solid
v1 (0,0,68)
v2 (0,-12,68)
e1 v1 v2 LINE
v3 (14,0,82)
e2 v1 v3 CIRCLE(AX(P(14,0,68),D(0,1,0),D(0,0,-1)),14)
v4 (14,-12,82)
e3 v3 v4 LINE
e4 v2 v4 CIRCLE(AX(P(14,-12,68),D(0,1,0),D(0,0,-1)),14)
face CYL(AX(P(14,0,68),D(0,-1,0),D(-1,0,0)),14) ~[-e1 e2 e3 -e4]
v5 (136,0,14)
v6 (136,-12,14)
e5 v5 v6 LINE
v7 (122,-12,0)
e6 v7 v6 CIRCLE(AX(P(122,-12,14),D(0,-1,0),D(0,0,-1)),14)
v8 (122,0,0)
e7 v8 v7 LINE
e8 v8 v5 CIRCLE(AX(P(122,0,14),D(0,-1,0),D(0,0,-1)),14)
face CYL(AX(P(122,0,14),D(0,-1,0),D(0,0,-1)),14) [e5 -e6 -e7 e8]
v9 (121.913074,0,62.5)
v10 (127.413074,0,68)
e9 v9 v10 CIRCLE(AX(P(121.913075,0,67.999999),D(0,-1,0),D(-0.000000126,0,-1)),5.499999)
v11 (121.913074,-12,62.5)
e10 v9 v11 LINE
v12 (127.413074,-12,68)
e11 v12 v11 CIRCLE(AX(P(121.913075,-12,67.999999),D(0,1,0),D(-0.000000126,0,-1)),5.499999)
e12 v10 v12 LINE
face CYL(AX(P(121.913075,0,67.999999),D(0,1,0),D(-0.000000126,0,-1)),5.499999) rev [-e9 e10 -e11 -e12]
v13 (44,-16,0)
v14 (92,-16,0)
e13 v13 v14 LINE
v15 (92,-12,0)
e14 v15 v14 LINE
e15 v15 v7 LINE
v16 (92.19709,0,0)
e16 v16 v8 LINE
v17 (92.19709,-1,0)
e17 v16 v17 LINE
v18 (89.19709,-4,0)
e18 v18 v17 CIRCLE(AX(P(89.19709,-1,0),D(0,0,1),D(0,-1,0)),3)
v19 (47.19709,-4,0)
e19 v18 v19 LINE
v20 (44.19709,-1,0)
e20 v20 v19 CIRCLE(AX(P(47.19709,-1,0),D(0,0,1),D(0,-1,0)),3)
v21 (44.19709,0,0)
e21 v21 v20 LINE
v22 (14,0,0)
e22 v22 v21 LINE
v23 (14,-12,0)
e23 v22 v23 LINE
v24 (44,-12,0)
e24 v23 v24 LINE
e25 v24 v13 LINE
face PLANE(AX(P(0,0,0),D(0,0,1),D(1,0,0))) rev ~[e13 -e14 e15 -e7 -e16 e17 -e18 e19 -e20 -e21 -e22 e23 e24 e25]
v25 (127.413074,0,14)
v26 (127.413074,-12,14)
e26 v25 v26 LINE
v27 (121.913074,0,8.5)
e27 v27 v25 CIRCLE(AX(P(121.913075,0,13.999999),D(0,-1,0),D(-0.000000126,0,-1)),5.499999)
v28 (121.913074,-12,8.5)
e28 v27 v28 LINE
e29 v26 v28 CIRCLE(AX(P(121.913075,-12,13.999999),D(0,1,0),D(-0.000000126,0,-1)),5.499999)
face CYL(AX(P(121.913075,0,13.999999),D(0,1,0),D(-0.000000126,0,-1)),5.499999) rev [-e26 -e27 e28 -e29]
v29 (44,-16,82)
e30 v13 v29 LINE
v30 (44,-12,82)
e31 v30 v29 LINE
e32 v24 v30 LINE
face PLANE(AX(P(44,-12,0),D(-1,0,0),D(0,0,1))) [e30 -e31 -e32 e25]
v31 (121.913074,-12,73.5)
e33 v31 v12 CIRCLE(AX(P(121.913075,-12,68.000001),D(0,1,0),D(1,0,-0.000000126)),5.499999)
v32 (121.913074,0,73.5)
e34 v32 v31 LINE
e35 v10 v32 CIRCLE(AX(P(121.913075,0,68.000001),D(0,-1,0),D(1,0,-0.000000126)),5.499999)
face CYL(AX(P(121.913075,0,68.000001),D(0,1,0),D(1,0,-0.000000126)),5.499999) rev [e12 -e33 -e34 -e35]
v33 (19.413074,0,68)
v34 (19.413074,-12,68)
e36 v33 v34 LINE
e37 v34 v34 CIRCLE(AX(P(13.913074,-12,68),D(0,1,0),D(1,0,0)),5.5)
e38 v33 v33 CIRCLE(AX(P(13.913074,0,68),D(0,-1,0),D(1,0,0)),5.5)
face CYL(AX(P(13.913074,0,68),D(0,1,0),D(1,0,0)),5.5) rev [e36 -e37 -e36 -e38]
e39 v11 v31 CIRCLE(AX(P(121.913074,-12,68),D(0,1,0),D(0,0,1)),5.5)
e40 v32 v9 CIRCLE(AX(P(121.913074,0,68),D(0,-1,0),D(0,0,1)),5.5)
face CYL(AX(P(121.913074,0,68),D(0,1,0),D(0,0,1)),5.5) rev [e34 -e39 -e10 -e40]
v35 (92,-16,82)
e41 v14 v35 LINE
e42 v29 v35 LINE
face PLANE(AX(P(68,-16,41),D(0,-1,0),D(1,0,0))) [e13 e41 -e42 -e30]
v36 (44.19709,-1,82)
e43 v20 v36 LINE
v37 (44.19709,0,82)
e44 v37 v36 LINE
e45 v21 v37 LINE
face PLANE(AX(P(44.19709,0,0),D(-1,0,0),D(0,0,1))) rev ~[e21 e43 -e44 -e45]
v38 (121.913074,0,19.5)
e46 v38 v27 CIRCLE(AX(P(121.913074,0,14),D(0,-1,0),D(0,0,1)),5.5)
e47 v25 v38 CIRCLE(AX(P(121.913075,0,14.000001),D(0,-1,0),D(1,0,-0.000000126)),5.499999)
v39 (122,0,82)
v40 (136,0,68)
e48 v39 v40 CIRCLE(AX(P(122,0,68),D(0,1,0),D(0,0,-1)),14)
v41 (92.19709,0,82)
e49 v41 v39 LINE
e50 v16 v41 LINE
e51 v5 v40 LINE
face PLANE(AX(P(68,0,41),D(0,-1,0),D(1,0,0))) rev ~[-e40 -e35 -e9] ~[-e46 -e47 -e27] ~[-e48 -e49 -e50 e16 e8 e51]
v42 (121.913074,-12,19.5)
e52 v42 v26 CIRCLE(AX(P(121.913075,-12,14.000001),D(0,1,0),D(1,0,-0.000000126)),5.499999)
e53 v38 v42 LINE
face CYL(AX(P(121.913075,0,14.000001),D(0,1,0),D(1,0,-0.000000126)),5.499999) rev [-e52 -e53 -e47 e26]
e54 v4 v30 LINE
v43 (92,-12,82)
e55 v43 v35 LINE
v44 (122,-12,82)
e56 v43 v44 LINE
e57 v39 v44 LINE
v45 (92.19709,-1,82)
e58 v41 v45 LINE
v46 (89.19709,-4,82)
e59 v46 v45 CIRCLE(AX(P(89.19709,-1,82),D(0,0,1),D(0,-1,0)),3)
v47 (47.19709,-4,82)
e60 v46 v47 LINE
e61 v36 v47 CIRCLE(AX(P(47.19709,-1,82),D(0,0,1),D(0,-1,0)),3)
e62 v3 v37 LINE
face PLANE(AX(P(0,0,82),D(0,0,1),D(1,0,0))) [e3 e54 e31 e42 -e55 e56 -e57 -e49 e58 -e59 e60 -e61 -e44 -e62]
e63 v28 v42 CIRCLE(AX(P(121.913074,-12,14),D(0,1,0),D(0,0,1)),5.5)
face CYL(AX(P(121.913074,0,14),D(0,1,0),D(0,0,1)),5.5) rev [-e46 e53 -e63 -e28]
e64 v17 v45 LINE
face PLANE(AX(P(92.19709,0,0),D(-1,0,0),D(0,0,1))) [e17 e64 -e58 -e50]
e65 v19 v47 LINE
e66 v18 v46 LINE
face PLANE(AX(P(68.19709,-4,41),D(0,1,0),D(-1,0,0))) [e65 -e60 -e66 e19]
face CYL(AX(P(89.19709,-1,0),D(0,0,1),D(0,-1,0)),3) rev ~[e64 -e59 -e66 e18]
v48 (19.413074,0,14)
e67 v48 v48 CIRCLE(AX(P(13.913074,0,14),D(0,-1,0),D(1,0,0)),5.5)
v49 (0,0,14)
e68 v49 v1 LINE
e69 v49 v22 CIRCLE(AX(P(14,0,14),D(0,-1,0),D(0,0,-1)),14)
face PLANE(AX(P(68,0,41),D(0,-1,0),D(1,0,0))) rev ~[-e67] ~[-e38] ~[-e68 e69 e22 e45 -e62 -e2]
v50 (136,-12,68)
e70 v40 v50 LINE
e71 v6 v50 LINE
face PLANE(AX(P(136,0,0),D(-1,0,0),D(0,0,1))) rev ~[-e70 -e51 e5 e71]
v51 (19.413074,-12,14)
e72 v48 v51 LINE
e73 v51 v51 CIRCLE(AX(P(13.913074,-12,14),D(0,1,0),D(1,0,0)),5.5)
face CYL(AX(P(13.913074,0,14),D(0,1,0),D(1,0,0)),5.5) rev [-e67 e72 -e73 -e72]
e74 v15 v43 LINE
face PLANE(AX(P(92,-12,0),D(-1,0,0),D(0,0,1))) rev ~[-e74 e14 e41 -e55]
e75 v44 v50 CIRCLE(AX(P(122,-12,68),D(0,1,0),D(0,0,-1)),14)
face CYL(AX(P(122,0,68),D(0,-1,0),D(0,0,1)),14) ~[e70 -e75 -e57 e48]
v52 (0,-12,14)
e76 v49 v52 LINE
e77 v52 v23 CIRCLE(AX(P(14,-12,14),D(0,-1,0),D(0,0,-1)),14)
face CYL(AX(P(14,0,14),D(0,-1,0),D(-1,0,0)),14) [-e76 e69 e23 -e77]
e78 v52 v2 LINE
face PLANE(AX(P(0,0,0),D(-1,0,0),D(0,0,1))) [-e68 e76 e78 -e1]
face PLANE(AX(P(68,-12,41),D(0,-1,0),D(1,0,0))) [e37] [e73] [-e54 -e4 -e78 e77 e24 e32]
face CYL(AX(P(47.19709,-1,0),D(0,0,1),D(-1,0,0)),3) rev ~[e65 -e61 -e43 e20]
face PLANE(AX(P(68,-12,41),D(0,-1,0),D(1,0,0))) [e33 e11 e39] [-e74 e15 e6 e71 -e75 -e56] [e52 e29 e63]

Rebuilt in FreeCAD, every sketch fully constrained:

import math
import FreeCAD as App
import Part
import Sketcher
from FreeCAD import Vector
Q = App.Units.Quantity


def edges_at(feature, points):
    """Names of the edges that pass closest to the given points."""
    edges = feature.Shape.Edges
    near = lambda p: min(range(len(edges)), key=lambda i: edges[i].distToShape(Part.Vertex(*p))[0])
    return sorted({f"Edge{near(p) + 1}" for p in points})


def add_polygon(sketch, points):
    """Adds a closed chain of lines whose ends are joined by coincident constraints."""
    first, n = sketch.GeometryCount, len(points)
    for a, b in zip(points, points[1:] + points[:1]):
        sketch.addGeometry(Part.LineSegment(App.Vector(*a, 0), App.Vector(*b, 0)), False)
    for i in range(n):
        sketch.addConstraint(Sketcher.Constraint("Coincident", first + i, 2, first + (i + 1) % n, 1))

doc = App.newDocument("Part")
params = doc.addObject("Spreadsheet::Sheet", "Params")
for row, (alias, value) in enumerate([
    ("sketch1_width", "136 mm"),
    ("sketch1_height", "82 mm"),
    ("pad1_length", "12 mm"),
    ("sketch2_width", "48 mm"),
    ("sketch2_height", "82 mm"),
    ("pad2_length", "4 mm"),
    ("sketch3_width", "48 mm"),
    ("sketch3_height", "82 mm"),
    ("pocket1_length", "4 mm"),
    ("fillet_radius", "14 mm"),
    ("sketch4_diameter", "11 mm"),
    ("fillet2_radius", "3 mm"),
], start=1):
    params.set(f"A{row}", alias)
    params.set(f"B{row}", "=" + value)
    params.setAlias(f"B{row}", alias)

body = doc.addObject("PartDesign::Body", "Body")

sketch1 = body.newObject("Sketcher::SketchObject", "Sketch")
sketch1.AttachmentSupport = (doc.getObject("XZ_Plane"), [""])
sketch1.MapMode = "FlatFace"
add_polygon(sketch1, [(0, 82), (0, 0), (136, 0), (136, 82)])
sketch1.addConstraint(Sketcher.Constraint("Vertical", 0))
sketch1.addConstraint(Sketcher.Constraint("Horizontal", 1))
sketch1.addConstraint(Sketcher.Constraint("Vertical", 2))
sketch1.addConstraint(Sketcher.Constraint("Horizontal", 3))
sketch1.addConstraint(Sketcher.Constraint("Coincident", 0, 2, -1, 1))
sketch1.addConstraint(Sketcher.Constraint("DistanceX", 1, 1, 1, 2, Q("136 mm")))
sketch1.addConstraint(Sketcher.Constraint("DistanceY", 0, 2, 0, 1, Q("82 mm")))
sketch1.setExpression("Constraints[9]", "Params.sketch1_width")
sketch1.setExpression("Constraints[10]", "Params.sketch1_height")
pad1 = body.newObject("PartDesign::Pad", "Pad")
pad1.Profile = sketch1
pad1.setExpression("Length", "Params.pad1_length")

sketch2 = body.newObject("Sketcher::SketchObject", "Sketch001")
sketch2.AttachmentSupport = (doc.getObject("XZ_Plane"), [""])
sketch2.MapMode = "FlatFace"
sketch2.AttachmentOffset = App.Placement(Vector(0, 0, 12), App.Rotation())
add_polygon(sketch2, [(44, 82), (44, 0), (92, 0), (92, 82)])
sketch2.addConstraint(Sketcher.Constraint("Vertical", 0))
sketch2.addConstraint(Sketcher.Constraint("Horizontal", 1))
sketch2.addConstraint(Sketcher.Constraint("Vertical", 2))
sketch2.addConstraint(Sketcher.Constraint("Horizontal", 3))
sketch2.addConstraint(Sketcher.Constraint("PointOnObject", 0, 2, -1))
sketch2.addConstraint(Sketcher.Constraint("DistanceX", 1, 1, 1, 2, Q("48 mm")))
sketch2.addConstraint(Sketcher.Constraint("DistanceY", 0, 2, 0, 1, Q("82 mm")))
sketch2.addConstraint(Sketcher.Constraint("DistanceX", -1, 1, 0, 2, Q("44 mm")))
sketch2.setExpression("Constraints[9]", "Params.sketch2_width")
sketch2.setExpression("Constraints[10]", "Params.sketch2_height")
pad2 = body.newObject("PartDesign::Pad", "Pad001")
pad2.Profile = sketch2
pad2.setExpression("Length", "Params.pad2_length")

sketch3 = body.newObject("Sketcher::SketchObject", "Sketch002")
sketch3.AttachmentSupport = (doc.getObject("XZ_Plane"), [""])
sketch3.MapMode = "FlatFace"
add_polygon(sketch3, [(92, 82), (92, 0), (44, 0), (44, 82)])
sketch3.addConstraint(Sketcher.Constraint("Vertical", 0))
sketch3.addConstraint(Sketcher.Constraint("Horizontal", 1))
sketch3.addConstraint(Sketcher.Constraint("Vertical", 2))
sketch3.addConstraint(Sketcher.Constraint("Horizontal", 3))
sketch3.addConstraint(Sketcher.Constraint("PointOnObject", 0, 2, -1))
sketch3.addConstraint(Sketcher.Constraint("DistanceX", 1, 2, 1, 1, Q("48 mm")))
sketch3.addConstraint(Sketcher.Constraint("DistanceY", 0, 2, 0, 1, Q("82 mm")))
sketch3.addConstraint(Sketcher.Constraint("DistanceX", -1, 1, 0, 2, Q("92.19709 mm")))
sketch3.setExpression("Constraints[9]", "Params.sketch3_width")
sketch3.setExpression("Constraints[10]", "Params.sketch3_height")
pocket1 = body.newObject("PartDesign::Pocket", "Pocket")
pocket1.Profile = sketch3
pocket1.setExpression("Length", "Params.pocket1_length")
pocket1.Reversed = True
doc.recompute()

fillet = body.newObject("PartDesign::Fillet", "Fillet")
fillet.Base = (pocket1, edges_at(pocket1, [
    (136, -6, 82),
    (0, -6, 82),
    (136, -6, 0),
    (0, -6, 0),
]))
fillet.setExpression("Radius", "Params.fillet_radius")

sketch4 = body.newObject("Sketcher::SketchObject", "Sketch003")
sketch4.AttachmentSupport = (doc.getObject("XZ_Plane"), [""])
sketch4.MapMode = "FlatFace"
sketch4.addGeometry(Part.ArcOfCircle(Part.Circle(Vector(122, 68, 0), Vector(0, 0, 1), 6), math.radians(90), math.radians(270)), False)
sketch4.addGeometry(Part.ArcOfCircle(Part.Circle(Vector(122, 68, 0), Vector(0, 0, 1), 5), math.radians(-90), math.radians(0)), False)
sketch4.addGeometry(Part.ArcOfCircle(Part.Circle(Vector(122, 68, 0), Vector(0, 0, 1), 5), math.radians(0), math.radians(90)), False)
sketch4.addGeometry(Part.ArcOfCircle(Part.Circle(Vector(122, 14, 0), Vector(0, 0, 1), 5), math.radians(0), math.radians(90)), False)
sketch4.addGeometry(Part.ArcOfCircle(Part.Circle(Vector(122, 14, 0), Vector(0, 0, 1), 6), math.radians(90), math.radians(270)), False)
sketch4.addGeometry(Part.ArcOfCircle(Part.Circle(Vector(122, 14, 0), Vector(0, 0, 1), 5), math.radians(-90), math.radians(0)), False)
sketch4.addGeometry(Part.Circle(Vector(14, 14, 0), Vector(0, 0, 1), 6), False)
sketch4.addGeometry(Part.Circle(Vector(14, 68, 0), Vector(0, 0, 1), 6), False)
sketch4.addConstraint(Sketcher.Constraint("Tangent", 0, 2, 1, 1))
sketch4.addConstraint(Sketcher.Constraint("Tangent", 1, 2, 2, 1))
sketch4.addConstraint(Sketcher.Constraint("Tangent", 2, 2, 0, 1))
sketch4.addConstraint(Sketcher.Constraint("Tangent", 3, 2, 4, 1))
sketch4.addConstraint(Sketcher.Constraint("Tangent", 4, 2, 5, 1))
sketch4.addConstraint(Sketcher.Constraint("Tangent", 5, 2, 3, 1))
sketch4.addConstraint(Sketcher.Constraint("Equal", 2, 3))
sketch4.addConstraint(Sketcher.Constraint("Equal", 5, 6))
sketch4.addConstraint(Sketcher.Constraint("Equal", 6, 7))
sketch4.addConstraint(Sketcher.Constraint("Horizontal", 5, 3, 6, 3))
sketch4.addConstraint(Sketcher.Constraint("Horizontal", 2, 3, 7, 3))
sketch4.addConstraint(Sketcher.Constraint("Horizontal", 7, 3, 1, 2))
sketch4.addConstraint(Sketcher.Constraint("Horizontal", 6, 3, 5, 2))
sketch4.addConstraint(Sketcher.Constraint("Vertical", 2, 3, 3, 3))
sketch4.addConstraint(Sketcher.Constraint("Vertical", 6, 3, 7, 3))
sketch4.addConstraint(Sketcher.Constraint("Vertical", 5, 3, 0, 2))
sketch4.addConstraint(Sketcher.Constraint("Vertical", 0, 2, 2, 2))
sketch4.addConstraint(Sketcher.Constraint("Vertical", 2, 2, 3, 2))
sketch4.addConstraint(Sketcher.Constraint("Vertical", 3, 2, 4, 2))
sketch4.addConstraint(Sketcher.Constraint("Diameter", 6, Q("11 mm")))
sketch4.addConstraint(Sketcher.Constraint("DistanceY", -1, 1, 0, 3, Q("68 mm")))
sketch4.addConstraint(Sketcher.Constraint("DistanceY", -1, 1, 3, 3, Q("14.000001 mm")))
sketch4.addConstraint(Sketcher.Constraint("DistanceX", 6, 3, 4, 3, Q("108 mm")))
sketch4.addConstraint(Sketcher.Constraint("DistanceX", -1, 1, 0, 3, Q("121.913074 mm")))
sketch4.setExpression("Constraints[19]", "Params.sketch4_diameter")
pocket2 = body.newObject("PartDesign::Pocket", "Pocket001")
pocket2.Profile = sketch4
pocket2.Type = "ThroughAll"
pocket2.Reversed = True
doc.recompute()

fillet2 = body.newObject("PartDesign::Fillet", "Fillet001")
fillet2.Base = (pocket2, edges_at(pocket2, [(92.197, -4, 41), (44.197, -4, 41)]))
fillet2.setExpression("Radius", "Params.fillet2_radius")

doc.recompute()
